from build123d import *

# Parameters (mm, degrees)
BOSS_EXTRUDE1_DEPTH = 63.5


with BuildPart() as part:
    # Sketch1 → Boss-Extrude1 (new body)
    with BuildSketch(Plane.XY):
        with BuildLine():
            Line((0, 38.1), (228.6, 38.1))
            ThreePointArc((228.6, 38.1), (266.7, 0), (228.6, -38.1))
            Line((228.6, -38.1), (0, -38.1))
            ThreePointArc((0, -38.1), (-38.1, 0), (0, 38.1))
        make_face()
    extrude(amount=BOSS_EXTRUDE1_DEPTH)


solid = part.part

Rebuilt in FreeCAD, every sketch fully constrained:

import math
import FreeCAD as App
import Part
import Sketcher
Q = App.Units.Quantity

doc = App.newDocument("Part")
body = doc.addObject("PartDesign::Body", "Body")

sketch1 = body.newObject("Sketcher::SketchObject", "Sketch")
sketch1.AttachmentSupport = (doc.getObject("XY_Plane"), [""])
sketch1.MapMode = "FlatFace"
sketch1.addGeometry([
    Part.LineSegment(App.Vector(229, 38, 0), App.Vector(0, 38, 0)),
    Part.ArcOfCircle(Part.Circle(App.Vector(0, 0, 0), App.Vector(0, 0, 1), 38), math.radians(90), math.radians(270)),
    Part.LineSegment(App.Vector(0, -38, 0), App.Vector(229, -38, 0)),
    Part.ArcOfCircle(Part.Circle(App.Vector(229, 0, 0), App.Vector(0, 0, 1), 38), math.radians(-90), math.radians(90)),
], False)
sketch1.addConstraint([
    Sketcher.Constraint("Tangent", 0, 2, 1, 1),
    Sketcher.Constraint("Tangent", 1, 2, 2, 1),
    Sketcher.Constraint("Tangent", 2, 2, 3, 1),
    Sketcher.Constraint("Tangent", 3, 2, 0, 1),
    Sketcher.Constraint("Horizontal", 0),
    Sketcher.Constraint("Horizontal", 2),
    Sketcher.Constraint("Coincident", 1, 3, -1, 1),
    Sketcher.Constraint("Radius", 1, Q("1.5 in")),
    Sketcher.Constraint("DistanceX", 0, 2, 0, 1, Q("9 in")),
])
pad1 = body.newObject("PartDesign::Pad", "Pad")
pad1.Profile = sketch1
pad1.Length = Q("2.5 in")

doc.recompute()
